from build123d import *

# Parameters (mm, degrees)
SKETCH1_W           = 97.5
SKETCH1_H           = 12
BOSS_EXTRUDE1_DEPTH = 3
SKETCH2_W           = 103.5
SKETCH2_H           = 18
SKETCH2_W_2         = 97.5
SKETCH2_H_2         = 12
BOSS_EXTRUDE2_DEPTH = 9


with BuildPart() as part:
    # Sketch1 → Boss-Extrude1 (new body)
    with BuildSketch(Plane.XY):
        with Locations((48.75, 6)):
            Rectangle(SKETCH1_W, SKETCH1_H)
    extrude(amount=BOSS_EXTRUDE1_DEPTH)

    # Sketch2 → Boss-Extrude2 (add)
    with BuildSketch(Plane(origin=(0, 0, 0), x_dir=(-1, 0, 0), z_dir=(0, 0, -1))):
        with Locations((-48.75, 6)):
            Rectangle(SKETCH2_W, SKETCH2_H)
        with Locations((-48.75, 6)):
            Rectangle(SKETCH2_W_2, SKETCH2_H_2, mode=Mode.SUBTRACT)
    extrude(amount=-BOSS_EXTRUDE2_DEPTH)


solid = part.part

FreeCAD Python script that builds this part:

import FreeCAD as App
import Part
import Sketcher
from FreeCAD import Vector

doc = App.newDocument("Part")
body = doc.addObject("PartDesign::Body", "Body")

# Sketch on XY plane
sketch1 = doc.addObject("Sketcher::SketchObject", "Sketch")
body.addObject(sketch1)
sketch1.AttachmentSupport = (doc.XY_Plane, [""])
sketch1.MapMode = "FlatFace"
sketch1.addGeometry([
    Part.LineSegment(Vector(0, 12, 0), Vector(0, 0, 0)),
    Part.LineSegment(Vector(0, 0, 0), Vector(98, 0, 0)),
    Part.LineSegment(Vector(98, 0, 0), Vector(98, 12, 0)),
    Part.LineSegment(Vector(98, 12, 0), Vector(0, 12, 0)),
], False)
sketch1.addConstraint([
    Sketcher.Constraint("Coincident", 0, 2, 1, 1),
    Sketcher.Constraint("Coincident", 1, 2, 2, 1),
    Sketcher.Constraint("Coincident", 2, 2, 3, 1),
    Sketcher.Constraint("Coincident", 3, 2, 0, 1),
    Sketcher.Constraint("Vertical", 0),
    Sketcher.Constraint("Horizontal", 1),
    Sketcher.Constraint("Vertical", 2),
    Sketcher.Constraint("Horizontal", 3),
    Sketcher.Constraint("Coincident", 0, 2, -1, 1),
    Sketcher.Constraint("DistanceY", 0, 2, 0, 1, 12.0),
    Sketcher.Constraint("DistanceX", 1, 1, 1, 2, 97.5),
])
pad1 = doc.addObject("PartDesign::Pad", "Pad")
body.addObject(pad1)
pad1.Profile = sketch1
pad1.Length = 3

# Sketch on XY plane
sketch2 = doc.addObject("Sketcher::SketchObject", "Sketch001")
body.addObject(sketch2)
sketch2.AttachmentSupport = (doc.XY_Plane, [""])
sketch2.MapMode = "FlatFace"
sketch2.addGeometry([
    Part.LineSegment(Vector(100, 15, 0), Vector(100, -3, 0)),  # 0
    Part.LineSegment(Vector(100, -3, 0), Vector(-3, -3, 0)),  # 1
    Part.LineSegment(Vector(-3, -3, 0), Vector(-3, 15, 0)),  # 2
    Part.LineSegment(Vector(-3, 15, 0), Vector(100, 15, 0)),  # 3
    Part.LineSegment(Vector(0, 0, 0), Vector(98, 0, 0)),  # 4
    Part.LineSegment(Vector(98, 0, 0), Vector(98, 12, 0)),  # 5
    Part.LineSegment(Vector(98, 12, 0), Vector(0, 12, 0)),  # 6
    Part.LineSegment(Vector(0, 12, 0), Vector(0, 0, 0)),  # 7
], False)
sketch2.addConstraint([
    Sketcher.Constraint("Coincident", 0, 2, 1, 1),
    Sketcher.Constraint("Coincident", 1, 2, 2, 1),
    Sketcher.Constraint("Coincident", 2, 2, 3, 1),
    Sketcher.Constraint("Coincident", 3, 2, 0, 1),
    Sketcher.Constraint("Coincident", 4, 2, 5, 1),
    Sketcher.Constraint("Coincident", 5, 2, 6, 1),
    Sketcher.Constraint("Coincident", 6, 2, 7, 1),
    Sketcher.Constraint("Coincident", 7, 2, 4, 1),
    Sketcher.Constraint("Vertical", 0),
    Sketcher.Constraint("Horizontal", 1),
    Sketcher.Constraint("Vertical", 2),
    Sketcher.Constraint("Horizontal", 3),
    Sketcher.Constraint("Horizontal", 4),
    Sketcher.Constraint("Vertical", 5),
    Sketcher.Constraint("Horizontal", 6),
    Sketcher.Constraint("Vertical", 7),
    Sketcher.Constraint("Coincident", 7, 2, -1, 1),
    Sketcher.Constraint("DistanceY", 0, 2, 0, 1, 18.0),
    Sketcher.Constraint("DistanceY", 5, 1, 5, 2, 12.0),
    Sketcher.Constraint("DistanceX", 1, 2, 1, 1, 103.5),
    Sketcher.Constraint("DistanceX", 4, 1, 4, 2, 97.5),
    Sketcher.Constraint("DistanceY", 0, 2, -1, 1, 3.0),
    Sketcher.Constraint("DistanceX", 1, 2, -1, 1, 3.0),
])
pad2 = doc.addObject("PartDesign::Pad", "Pad001")
body.addObject(pad2)
pad2.Profile = sketch2
pad2.Length = 9

doc.recompute()
